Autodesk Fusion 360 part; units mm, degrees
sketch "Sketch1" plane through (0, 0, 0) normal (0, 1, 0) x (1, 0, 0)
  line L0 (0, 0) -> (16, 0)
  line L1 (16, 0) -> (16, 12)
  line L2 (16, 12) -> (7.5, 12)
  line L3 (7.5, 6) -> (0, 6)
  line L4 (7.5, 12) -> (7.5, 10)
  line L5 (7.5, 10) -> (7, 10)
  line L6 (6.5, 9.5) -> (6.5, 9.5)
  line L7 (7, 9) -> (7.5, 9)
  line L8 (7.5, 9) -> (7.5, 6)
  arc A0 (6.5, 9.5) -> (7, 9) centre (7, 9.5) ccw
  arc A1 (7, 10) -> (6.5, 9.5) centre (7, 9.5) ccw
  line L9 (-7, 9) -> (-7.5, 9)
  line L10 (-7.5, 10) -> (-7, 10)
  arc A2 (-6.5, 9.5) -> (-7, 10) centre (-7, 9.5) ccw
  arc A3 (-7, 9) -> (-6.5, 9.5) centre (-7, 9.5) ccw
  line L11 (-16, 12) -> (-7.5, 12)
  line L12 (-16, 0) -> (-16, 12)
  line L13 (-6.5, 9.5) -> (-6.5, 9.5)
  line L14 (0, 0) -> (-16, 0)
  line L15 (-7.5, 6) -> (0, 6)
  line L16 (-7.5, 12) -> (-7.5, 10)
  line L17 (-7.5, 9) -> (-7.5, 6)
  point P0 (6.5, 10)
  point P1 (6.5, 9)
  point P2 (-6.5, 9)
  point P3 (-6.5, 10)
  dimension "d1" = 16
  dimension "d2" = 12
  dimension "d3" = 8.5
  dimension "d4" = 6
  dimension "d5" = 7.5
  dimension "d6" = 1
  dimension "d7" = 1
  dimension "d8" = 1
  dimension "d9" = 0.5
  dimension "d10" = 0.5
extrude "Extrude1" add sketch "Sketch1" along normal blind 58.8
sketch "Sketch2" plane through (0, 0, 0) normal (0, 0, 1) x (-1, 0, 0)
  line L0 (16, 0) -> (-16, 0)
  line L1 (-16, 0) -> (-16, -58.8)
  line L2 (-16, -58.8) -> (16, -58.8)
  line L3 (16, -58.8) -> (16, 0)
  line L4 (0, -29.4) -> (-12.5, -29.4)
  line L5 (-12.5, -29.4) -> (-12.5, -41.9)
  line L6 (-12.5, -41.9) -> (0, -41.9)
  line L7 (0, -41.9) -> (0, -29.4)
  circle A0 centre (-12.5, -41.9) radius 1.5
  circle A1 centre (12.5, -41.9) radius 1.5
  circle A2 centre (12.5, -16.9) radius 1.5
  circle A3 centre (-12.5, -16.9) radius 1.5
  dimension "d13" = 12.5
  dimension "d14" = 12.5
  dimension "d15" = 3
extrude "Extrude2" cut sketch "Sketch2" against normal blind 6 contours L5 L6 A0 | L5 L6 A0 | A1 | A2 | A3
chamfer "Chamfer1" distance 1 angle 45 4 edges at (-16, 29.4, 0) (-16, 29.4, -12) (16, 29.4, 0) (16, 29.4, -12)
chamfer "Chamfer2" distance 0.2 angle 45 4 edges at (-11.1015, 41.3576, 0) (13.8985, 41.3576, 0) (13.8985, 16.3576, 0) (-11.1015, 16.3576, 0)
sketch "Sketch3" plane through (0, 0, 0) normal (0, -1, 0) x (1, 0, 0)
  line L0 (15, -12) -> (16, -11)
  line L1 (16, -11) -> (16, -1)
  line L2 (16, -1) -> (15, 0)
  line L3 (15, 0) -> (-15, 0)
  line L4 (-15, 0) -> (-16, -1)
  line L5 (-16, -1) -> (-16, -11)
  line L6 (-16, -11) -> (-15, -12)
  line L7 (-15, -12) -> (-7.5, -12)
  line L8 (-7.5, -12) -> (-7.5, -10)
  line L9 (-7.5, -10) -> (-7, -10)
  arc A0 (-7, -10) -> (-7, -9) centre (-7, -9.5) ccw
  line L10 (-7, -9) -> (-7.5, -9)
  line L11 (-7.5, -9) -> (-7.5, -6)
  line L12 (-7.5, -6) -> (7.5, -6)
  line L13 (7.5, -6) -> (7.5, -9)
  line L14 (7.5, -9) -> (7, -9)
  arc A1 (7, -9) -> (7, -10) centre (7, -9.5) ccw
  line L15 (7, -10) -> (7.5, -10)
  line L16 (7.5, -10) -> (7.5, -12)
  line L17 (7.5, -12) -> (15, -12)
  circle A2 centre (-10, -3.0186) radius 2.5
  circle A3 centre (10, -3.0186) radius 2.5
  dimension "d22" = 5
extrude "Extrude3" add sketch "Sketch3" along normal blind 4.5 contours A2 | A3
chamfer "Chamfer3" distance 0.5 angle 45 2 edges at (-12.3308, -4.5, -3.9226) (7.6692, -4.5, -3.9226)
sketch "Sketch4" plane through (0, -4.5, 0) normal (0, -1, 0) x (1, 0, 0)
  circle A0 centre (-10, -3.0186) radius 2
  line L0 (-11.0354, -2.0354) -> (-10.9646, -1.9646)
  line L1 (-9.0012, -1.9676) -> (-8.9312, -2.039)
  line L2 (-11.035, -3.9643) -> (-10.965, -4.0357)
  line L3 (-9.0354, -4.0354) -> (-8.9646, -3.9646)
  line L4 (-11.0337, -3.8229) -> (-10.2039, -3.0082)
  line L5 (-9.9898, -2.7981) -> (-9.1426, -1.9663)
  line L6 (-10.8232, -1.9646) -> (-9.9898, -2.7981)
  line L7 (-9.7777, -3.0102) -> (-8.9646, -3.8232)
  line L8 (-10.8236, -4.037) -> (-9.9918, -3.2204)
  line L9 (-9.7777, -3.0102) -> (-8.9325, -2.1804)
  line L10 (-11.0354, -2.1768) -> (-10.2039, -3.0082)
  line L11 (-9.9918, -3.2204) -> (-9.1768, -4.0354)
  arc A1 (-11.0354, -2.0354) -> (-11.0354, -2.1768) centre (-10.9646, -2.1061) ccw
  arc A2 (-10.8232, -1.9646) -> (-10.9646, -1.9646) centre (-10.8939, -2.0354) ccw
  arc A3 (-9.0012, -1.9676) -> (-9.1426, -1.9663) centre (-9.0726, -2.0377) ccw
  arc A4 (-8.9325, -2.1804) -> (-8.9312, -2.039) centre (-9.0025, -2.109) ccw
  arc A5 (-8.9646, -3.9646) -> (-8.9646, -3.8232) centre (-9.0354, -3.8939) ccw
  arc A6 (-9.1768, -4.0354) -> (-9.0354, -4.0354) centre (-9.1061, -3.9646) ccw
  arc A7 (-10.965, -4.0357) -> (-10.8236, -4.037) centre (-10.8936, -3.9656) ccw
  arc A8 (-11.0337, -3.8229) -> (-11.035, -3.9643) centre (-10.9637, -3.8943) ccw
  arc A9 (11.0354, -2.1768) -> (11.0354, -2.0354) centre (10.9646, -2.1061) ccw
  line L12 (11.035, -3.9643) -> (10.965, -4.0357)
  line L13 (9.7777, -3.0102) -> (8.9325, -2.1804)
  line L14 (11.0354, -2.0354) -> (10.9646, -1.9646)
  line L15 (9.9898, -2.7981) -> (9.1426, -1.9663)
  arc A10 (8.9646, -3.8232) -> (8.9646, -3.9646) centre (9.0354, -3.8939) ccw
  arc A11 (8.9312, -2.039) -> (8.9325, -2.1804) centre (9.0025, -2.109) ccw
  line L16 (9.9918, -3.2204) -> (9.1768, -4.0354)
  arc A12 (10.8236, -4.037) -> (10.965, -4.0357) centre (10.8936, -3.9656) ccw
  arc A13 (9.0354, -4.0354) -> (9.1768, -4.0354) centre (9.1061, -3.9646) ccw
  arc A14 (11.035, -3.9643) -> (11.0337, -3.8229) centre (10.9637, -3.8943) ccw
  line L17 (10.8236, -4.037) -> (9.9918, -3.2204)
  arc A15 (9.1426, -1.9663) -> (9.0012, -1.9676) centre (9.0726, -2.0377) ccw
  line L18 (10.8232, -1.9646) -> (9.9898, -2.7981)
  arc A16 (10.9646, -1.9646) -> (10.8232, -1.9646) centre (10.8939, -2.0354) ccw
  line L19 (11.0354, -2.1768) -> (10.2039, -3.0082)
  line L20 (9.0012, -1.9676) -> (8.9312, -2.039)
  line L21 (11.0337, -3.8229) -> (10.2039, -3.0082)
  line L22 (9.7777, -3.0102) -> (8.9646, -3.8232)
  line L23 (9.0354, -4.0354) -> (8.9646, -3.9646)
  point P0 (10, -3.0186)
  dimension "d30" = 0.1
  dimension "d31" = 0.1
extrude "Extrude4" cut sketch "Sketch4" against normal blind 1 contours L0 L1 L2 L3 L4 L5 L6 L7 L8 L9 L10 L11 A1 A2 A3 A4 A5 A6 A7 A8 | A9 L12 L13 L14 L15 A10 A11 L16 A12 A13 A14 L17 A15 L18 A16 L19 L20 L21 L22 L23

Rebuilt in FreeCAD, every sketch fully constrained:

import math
import FreeCAD as App
import Part
import Sketcher
from FreeCAD import Vector
Q = App.Units.Quantity


def edges_at(feature, points):
    """Names of the edges that pass closest to the given points."""
    edges = feature.Shape.Edges
    near = lambda p: min(range(len(edges)), key=lambda i: edges[i].distToShape(Part.Vertex(*p))[0])
    return sorted({f"Edge{near(p) + 1}" for p in points})

doc = App.newDocument("Part")
body = doc.addObject("PartDesign::Body", "Body")

# Sketch on XZ plane
sketch1 = doc.addObject("Sketcher::SketchObject", "Sketch")
body.addObject(sketch1)
sketch1.AttachmentSupport = (doc.XZ_Plane, [""])
sketch1.MapMode = "FlatFace"
sketch1.addGeometry([
    Part.LineSegment(Vector(-16, 0, 0), Vector(16, 0, 0)),  # 0
    Part.LineSegment(Vector(16, 0, 0), Vector(16, -12, 0)),  # 1
    Part.LineSegment(Vector(16, -12, 0), Vector(7.5, -12, 0)),  # 2
    Part.LineSegment(Vector(7.5, -12, 0), Vector(7.5, -10, 0)),  # 3
    Part.LineSegment(Vector(7.5, -10, 0), Vector(7, -10, 0)),  # 4
    Part.ArcOfCircle(Part.Circle(Vector(7, -9.5, 0), Vector(0, 0, 1), 0.5), math.radians(90), math.radians(270)),  # 5
    Part.LineSegment(Vector(7, -9, 0), Vector(7.5, -9, 0)),  # 6
    Part.LineSegment(Vector(7.5, -9, 0), Vector(7.5, -6, 0)),  # 7
    Part.LineSegment(Vector(7.5, -6, 0), Vector(-7.5, -6, 0)),  # 8
    Part.LineSegment(Vector(-7.5, -6, 0), Vector(-7.5, -9, 0)),  # 9
    Part.LineSegment(Vector(-7.5, -9, 0), Vector(-7, -9, 0)),  # 10
    Part.ArcOfCircle(Part.Circle(Vector(-7, -9.5, 0), Vector(0, 0, 1), 0.5), math.radians(-90), math.radians(90)),  # 11
    Part.LineSegment(Vector(-7, -10, 0), Vector(-7.5, -10, 0)),  # 12
    Part.LineSegment(Vector(-7.5, -10, 0), Vector(-7.5, -12, 0)),  # 13
    Part.LineSegment(Vector(-7.5, -12, 0), Vector(-16, -12, 0)),  # 14
    Part.LineSegment(Vector(-16, -12, 0), Vector(-16, 0, 0)),  # 15
], False)
sketch1.addConstraint([
    Sketcher.Constraint("Coincident", 0, 2, 1, 1),
    Sketcher.Constraint("Coincident", 1, 2, 2, 1),
    Sketcher.Constraint("Coincident", 2, 2, 3, 1),
    Sketcher.Constraint("Coincident", 3, 2, 4, 1),
    Sketcher.Constraint("Tangent", 4, 2, 5, 2),
    Sketcher.Constraint("Tangent", 5, 1, 6, 1),
    Sketcher.Constraint("Coincident", 6, 2, 7, 1),
    Sketcher.Constraint("Coincident", 7, 2, 8, 1),
    Sketcher.Constraint("Coincident", 8, 2, 9, 1),
    Sketcher.Constraint("Coincident", 9, 2, 10, 1),
    Sketcher.Constraint("Tangent", 10, 2, 11, 2),
    Sketcher.Constraint("Tangent", 11, 1, 12, 1),
    Sketcher.Constraint("Coincident", 12, 2, 13, 1),
    Sketcher.Constraint("Coincident", 13, 2, 14, 1),
    Sketcher.Constraint("Coincident", 14, 2, 15, 1),
    Sketcher.Constraint("Coincident", 15, 2, 0, 1),
    Sketcher.Constraint("Horizontal", 0),
    Sketcher.Constraint("Vertical", 1),
    Sketcher.Constraint("Horizontal", 2),
    Sketcher.Constraint("Vertical", 3),
    Sketcher.Constraint("Horizontal", 4),
    Sketcher.Constraint("Horizontal", 6),
    Sketcher.Constraint("Vertical", 7),
    Sketcher.Constraint("Horizontal", 8),
    Sketcher.Constraint("Vertical", 9),
    Sketcher.Constraint("Horizontal", 10),
    Sketcher.Constraint("Horizontal", 12),
    Sketcher.Constraint("Vertical", 13),
    Sketcher.Constraint("Horizontal", 14),
    Sketcher.Constraint("Vertical", 15),
    Sketcher.Constraint("Equal", 5, 11),
    Sketcher.Constraint("Symmetric", 0, 2, 15, 2, -1, 1),
    Sketcher.Constraint("Symmetric", 5, 3, 11, 3, -2),
    Sketcher.Constraint("Symmetric", 2, 2, 13, 2, -2),
    Sketcher.Constraint("Vertical", 3, 2, 6, 2),
    Sketcher.Constraint("Vertical", 9, 2, 12, 2),
    Sketcher.Constraint("Radius", 5, Q("0.5 mm")),
    Sketcher.Constraint("DistanceY", 1, 2, 1, 1, Q("12 mm")),
    Sketcher.Constraint("DistanceX", 2, 2, 2, 1, Q("8.5 mm")),
    Sketcher.Constraint("DistanceX", 4, 2, 4, 1, Q("0.5 mm")),
    Sketcher.Constraint("DistanceX", -1, 1, 0, 2, Q("16 mm")),
    Sketcher.Constraint("DistanceY", 7, 2, -1, 1, Q("6 mm")),
    Sketcher.Constraint("DistanceY", 3, 1, 3, 2, Q("2 mm")),
])
pad1 = doc.addObject("PartDesign::Pad", "Pad")
body.addObject(pad1)
pad1.Profile = sketch1
pad1.Length = 58.8
pad1.Reversed = True

# Sketch on XY plane
sketch2 = doc.addObject("Sketcher::SketchObject", "Sketch001")
body.addObject(sketch2)
sketch2.AttachmentSupport = (doc.XY_Plane, [""])
sketch2.MapMode = "FlatFace"
sketch2.addGeometry([
    Part.Circle(Vector(12.5, 41.9, 0), Vector(0, 0, 1), 1.5),
    Part.Circle(Vector(-12.5, 41.9, 0), Vector(0, 0, 1), 1.5),
    Part.Circle(Vector(-12.5, 16.9, 0), Vector(0, 0, 1), 1.5),
    Part.Circle(Vector(12.5, 16.9, 0), Vector(0, 0, 1), 1.5),
], False)
sketch2.addConstraint([
    Sketcher.Constraint("Equal", 0, 1),
    Sketcher.Constraint("Equal", 1, 2),
    Sketcher.Constraint("Equal", 2, 3),
    Sketcher.Constraint("Symmetric", 0, 3, 1, 3, -2),
    Sketcher.Constraint("Symmetric", 2, 3, 3, 3, -2),
    Sketcher.Constraint("Vertical", 1, 3, 2, 3),
    Sketcher.Constraint("Diameter", 0, Q("3 mm")),
    Sketcher.Constraint("DistanceX", -1, 1, 0, 3, Q("12.5 mm")),
    Sketcher.Constraint("DistanceY", 2, 3, 1, 3, Q("25 mm")),
    Sketcher.Constraint("DistanceY", -1, 1, 0, 3, Q("41.9 mm")),
])
pocket1 = doc.addObject("PartDesign::Pocket", "Pocket")
body.addObject(pocket1)
pocket1.Profile = sketch2
pocket1.Length = 6
doc.recompute()

chamfer = doc.addObject("PartDesign::Chamfer", "Chamfer")
body.addObject(chamfer)
chamfer.Base = (pocket1, edges_at(pocket1, [
    (-16, 29.4, 0),
    (-16, 29.4, -12),
    (16, 29.4, 0),
    (16, 29.4, -12),
]))
chamfer.Size = 1
doc.recompute()

chamfer2 = doc.addObject("PartDesign::Chamfer", "Chamfer001")
body.addObject(chamfer2)
chamfer2.Base = (chamfer, edges_at(chamfer, [
    (-11.101, 41.358, 0),
    (13.899, 41.358, 0),
    (13.899, 16.358, 0),
    (-11.101, 16.358, 0),
]))
chamfer2.Size = 0.2

# Sketch on XZ plane
sketch3 = doc.addObject("Sketcher::SketchObject", "Sketch002")
body.addObject(sketch3)
sketch3.AttachmentSupport = (doc.XZ_Plane, [""])
sketch3.MapMode = "FlatFace"
sketch3.addGeometry([
    Part.Circle(Vector(-10, -3, 0), Vector(0, 0, 1), 2.5),
    Part.Circle(Vector(10, -3, 0), Vector(0, 0, 1), 2.5),
], False)
sketch3.addConstraint([
    Sketcher.Constraint("Equal", 0, 1),
    Sketcher.Constraint("Symmetric", 0, 3, 1, 3, -2),
    Sketcher.Constraint("Diameter", 0, Q("5 mm")),
    Sketcher.Constraint("DistanceX", 0, 3, -1, 1, Q("10 mm")),
    Sketcher.Constraint("DistanceY", 0, 3, -1, 1, Q("3.0186 mm")),
])
pad2 = doc.addObject("PartDesign::Pad", "Pad001")
body.addObject(pad2)
pad2.Profile = sketch3
pad2.Length = 4.5
doc.recompute()

chamfer3 = doc.addObject("PartDesign::Chamfer", "Chamfer002")
body.addObject(chamfer3)
chamfer3.Base = (pad2, edges_at(pad2, [(-12.331, -4.5, -3.923), (7.669, -4.5, -3.923)]))
chamfer3.Size = 0.5

# Sketch on XZ plane
sketch4 = doc.addObject("Sketcher::SketchObject", "Sketch003")
body.addObject(sketch4)
sketch4.AttachmentSupport = (doc.XZ_Plane, [""])
sketch4.MapMode = "FlatFace"
sketch4.AttachmentOffset = App.Placement(Vector(0, 0, 4.5), App.Rotation())
sketch4.addGeometry([
    Part.LineSegment(Vector(-10.96, -1.96, 0), Vector(-11.04, -2.04, 0)),  # 0
    Part.ArcOfCircle(Part.Circle(Vector(-10.96, -2.11, 0), Vector(0, 0, 1), 0.1), math.radians(135), math.radians(225)),  # 1
    Part.LineSegment(Vector(-11.04, -2.18, 0), Vector(-10.2, -3.01, 0)),  # 2
    Part.LineSegment(Vector(-10.2, -3.01, 0), Vector(-11.03, -3.82, 0)),  # 3
    Part.ArcOfCircle(Part.Circle(Vector(-10.96, -3.89, 0), Vector(0, 0, 1), 0.1), math.radians(134), math.radians(224)),  # 4
    Part.LineSegment(Vector(-11.04, -3.96, 0), Vector(-10.96, -4.04, 0)),  # 5
    Part.ArcOfCircle(Part.Circle(Vector(-10.89, -3.97, 0), Vector(0, 0, 1), 0.1), math.radians(-136), math.radians(-46)),  # 6
    Part.LineSegment(Vector(-10.82, -4.04, 0), Vector(-9.99, -3.22, 0)),  # 7
    Part.LineSegment(Vector(-9.99, -3.22, 0), Vector(-9.18, -4.04, 0)),  # 8
    Part.ArcOfCircle(Part.Circle(Vector(-9.11, -3.96, 0), Vector(0, 0, 1), 0.1), math.radians(-135), math.radians(-45)),  # 9
    Part.LineSegment(Vector(-9.04, -4.04, 0), Vector(-8.96, -3.96, 0)),  # 10
    Part.ArcOfCircle(Part.Circle(Vector(-9.04, -3.89, 0), Vector(0, 0, 1), 0.1), math.radians(-45), math.radians(45)),  # 11
    Part.LineSegment(Vector(-8.96, -3.82, 0), Vector(-9.78, -3.01, 0)),  # 12
    Part.LineSegment(Vector(-9.78, -3.01, 0), Vector(-8.93, -2.18, 0)),  # 13
    Part.ArcOfCircle(Part.Circle(Vector(-9, -2.11, 0), Vector(0, 0, 1), 0.1), math.radians(-46), math.radians(44)),  # 14
    Part.LineSegment(Vector(-8.93, -2.04, 0), Vector(-9, -1.97, 0)),  # 15
    Part.ArcOfCircle(Part.Circle(Vector(-9.07, -2.04, 0), Vector(0, 0, 1), 0.1), math.radians(44), math.radians(134)),  # 16
    Part.LineSegment(Vector(-9.14, -1.97, 0), Vector(-9.99, -2.8, 0)),  # 17
    Part.LineSegment(Vector(-9.99, -2.8, 0), Vector(-10.82, -1.96, 0)),  # 18
    Part.ArcOfCircle(Part.Circle(Vector(-10.89, -2.04, 0), Vector(0, 0, 1), 0.1), math.radians(45), math.radians(135)),  # 19
    Part.LineSegment(Vector(10.2, -3.01, 0), Vector(11.04, -2.18, 0)),  # 20
    Part.ArcOfCircle(Part.Circle(Vector(10.96, -2.11, 0), Vector(0, 0, 1), 0.1), math.radians(-45), math.radians(45)),  # 21
    Part.LineSegment(Vector(11.04, -2.04, 0), Vector(10.96, -1.96, 0)),  # 22
    Part.ArcOfCircle(Part.Circle(Vector(10.89, -2.04, 0), Vector(0, 0, 1), 0.1), math.radians(45), math.radians(135)),  # 23
    Part.LineSegment(Vector(10.82, -1.96, 0), Vector(9.99, -2.8, 0)),  # 24
    Part.LineSegment(Vector(9.99, -2.8, 0), Vector(9.14, -1.97, 0)),  # 25
    Part.ArcOfCircle(Part.Circle(Vector(9.07, -2.04, 0), Vector(0, 0, 1), 0.1), math.radians(46), math.radians(136)),  # 26
    Part.LineSegment(Vector(9, -1.97, 0), Vector(8.93, -2.04, 0)),  # 27
    Part.ArcOfCircle(Part.Circle(Vector(9, -2.11, 0), Vector(0, 0, 1), 0.1), math.radians(136), math.radians(226)),  # 28
    Part.LineSegment(Vector(8.93, -2.18, 0), Vector(9.78, -3.01, 0)),  # 29
    Part.LineSegment(Vector(9.78, -3.01, 0), Vector(8.96, -3.82, 0)),  # 30
    Part.ArcOfCircle(Part.Circle(Vector(9.04, -3.89, 0), Vector(0, 0, 1), 0.1), math.radians(135), math.radians(225)),  # 31
    Part.LineSegment(Vector(8.96, -3.96, 0), Vector(9.04, -4.04, 0)),  # 32
    Part.ArcOfCircle(Part.Circle(Vector(9.11, -3.96, 0), Vector(0, 0, 1), 0.1), math.radians(-135), math.radians(-45)),  # 33
    Part.LineSegment(Vector(9.18, -4.04, 0), Vector(9.99, -3.22, 0)),  # 34
    Part.LineSegment(Vector(9.99, -3.22, 0), Vector(10.82, -4.04, 0)),  # 35
    Part.ArcOfCircle(Part.Circle(Vector(10.89, -3.97, 0), Vector(0, 0, 1), 0.1), math.radians(-134), math.radians(-44)),  # 36
    Part.LineSegment(Vector(10.96, -4.04, 0), Vector(11.04, -3.96, 0)),  # 37
    Part.ArcOfCircle(Part.Circle(Vector(10.96, -3.89, 0), Vector(0, 0, 1), 0.1), math.radians(-44), math.radians(46)),  # 38
    Part.LineSegment(Vector(11.03, -3.82, 0), Vector(10.2, -3.01, 0)),  # 39
], False)
sketch4.addConstraint([
    Sketcher.Constraint("Coincident", 0, 2, 1, 1),
    Sketcher.Constraint("Coincident", 1, 2, 2, 1),
    Sketcher.Constraint("Coincident", 2, 2, 3, 1),
    Sketcher.Constraint("Coincident", 3, 2, 4, 1),
    Sketcher.Constraint("Coincident", 4, 2, 5, 1),
    Sketcher.Constraint("Coincident", 5, 2, 6, 1),
    Sketcher.Constraint("Coincident", 6, 2, 7, 1),
    Sketcher.Constraint("Coincident", 7, 2, 8, 1),
    Sketcher.Constraint("Coincident", 8, 2, 9, 1),
    Sketcher.Constraint("Coincident", 9, 2, 10, 1),
    Sketcher.Constraint("Coincident", 10, 2, 11, 1),
    Sketcher.Constraint("Coincident", 11, 2, 12, 1),
    Sketcher.Constraint("Coincident", 12, 2, 13, 1),
    Sketcher.Constraint("Coincident", 13, 2, 14, 1),
    Sketcher.Constraint("Coincident", 14, 2, 15, 1),
    Sketcher.Constraint("Coincident", 15, 2, 16, 1),
    Sketcher.Constraint("Coincident", 16, 2, 17, 1),
    Sketcher.Constraint("Coincident", 17, 2, 18, 1),
    Sketcher.Constraint("Coincident", 18, 2, 19, 1),
    Sketcher.Constraint("Coincident", 19, 2, 0, 1),
    Sketcher.Constraint("Coincident", 20, 2, 21, 1),
    Sketcher.Constraint("Coincident", 21, 2, 22, 1),
    Sketcher.Constraint("Coincident", 22, 2, 23, 1),
    Sketcher.Constraint("Coincident", 23, 2, 24, 1),
    Sketcher.Constraint("Coincident", 24, 2, 25, 1),
    Sketcher.Constraint("Coincident", 25, 2, 26, 1),
    Sketcher.Constraint("Coincident", 26, 2, 27, 1),
    Sketcher.Constraint("Coincident", 27, 2, 28, 1),
    Sketcher.Constraint("Coincident", 28, 2, 29, 1),
    Sketcher.Constraint("Coincident", 29, 2, 30, 1),
    Sketcher.Constraint("Coincident", 30, 2, 31, 1),
    Sketcher.Constraint("Coincident", 31, 2, 32, 1),
    Sketcher.Constraint("Coincident", 32, 2, 33, 1),
    Sketcher.Constraint("Coincident", 33, 2, 34, 1),
    Sketcher.Constraint("Coincident", 34, 2, 35, 1),
    Sketcher.Constraint("Coincident", 35, 2, 36, 1),
    Sketcher.Constraint("Coincident", 36, 2, 37, 1),
    Sketcher.Constraint("Coincident", 37, 2, 38, 1),
    Sketcher.Constraint("Coincident", 38, 2, 39, 1),
    Sketcher.Constraint("Coincident", 39, 2, 20, 1),
    Sketcher.Constraint("Equal", 1, 4),
    Sketcher.Constraint("Equal", 4, 6),
    Sketcher.Constraint("Equal", 6, 9),
    Sketcher.Constraint("Equal", 9, 11),
    Sketcher.Constraint("Equal", 11, 14),
    Sketcher.Constraint("Equal", 14, 16),
    Sketcher.Constraint("Equal", 16, 19),
    Sketcher.Constraint("Equal", 19, 21),
    Sketcher.Constraint("Equal", 21, 23),
    Sketcher.Constraint("Equal", 23, 26),
    Sketcher.Constraint("Equal", 26, 28),
    Sketcher.Constraint("Equal", 28, 31),
    Sketcher.Constraint("Equal", 31, 33),
    Sketcher.Constraint("Equal", 33, 36),
    Sketcher.Constraint("Equal", 36, 38),
    Sketcher.Constraint("Symmetric", 1, 3, 21, 3, -2),
    Sketcher.Constraint("Symmetric", 19, 3, 23, 3, -2),
    Sketcher.Constraint("Symmetric", 16, 3, 26, 3, -2),
    Sketcher.Constraint("Symmetric", 14, 3, 28, 3, -2),
    Sketcher.Constraint("Symmetric", 11, 3, 31, 3, -2),
    Sketcher.Constraint("Symmetric", 9, 3, 33, 3, -2),
    Sketcher.Constraint("Symmetric", 6, 3, 36, 3, -2),
    Sketcher.Constraint("Symmetric", 4, 3, 38, 3, -2),
    Sketcher.Constraint("Symmetric", 17, 2, 24, 2, -2),
    Sketcher.Constraint("Symmetric", 12, 2, 29, 2, -2),
    Sketcher.Constraint("Symmetric", 7, 2, 34, 2, -2),
    Sketcher.Constraint("Symmetric", 2, 2, 39, 2, -2),
    Sketcher.Constraint("Perpendicular", 0, 2),
    Sketcher.Constraint("Parallel", 3, 7),
    Sketcher.Constraint("Parallel", 2, 8),
    Sketcher.Constraint("Perpendicular", 8, 10),
    Sketcher.Constraint("Perpendicular", 10, 12),
    Sketcher.Constraint("Parallel", 7, 13),
    Sketcher.Constraint("Parallel", 5, 15),
    Sketcher.Constraint("Parallel", 13, 17),
    Sketcher.Constraint("Parallel", 12, 18),
    Sketcher.Constraint("Perpendicular", 18, 20),
    Sketcher.Constraint("Horizontal", 23, 3, 0, 2),
    Sketcher.Constraint("Horizontal", 8, 2, 9, 2),
    Sketcher.Constraint("Horizontal", 33, 3, 10, 2),
    Sketcher.Constraint("Horizontal", 18, 2, 19, 2),
    Sketcher.Constraint("Horizontal", 1, 2, 20, 2),
    Sketcher.Constraint("Horizontal", 0, 2, 21, 2),
    Sketcher.Constraint("Horizontal", 19, 2, 22, 2),
    Sketcher.Constraint("Horizontal", 22, 2, 23, 2),
    Sketcher.Constraint("Horizontal", 16, 2, 25, 2),
    Sketcher.Constraint("Horizontal", 15, 2, 26, 2),
    Sketcher.Constraint("Horizontal", 14, 2, 27, 2),
    Sketcher.Constraint("Horizontal", 13, 2, 28, 2),
    Sketcher.Constraint("Horizontal", 11, 2, 30, 2),
    Sketcher.Constraint("Horizontal", 10, 2, 31, 2),
    Sketcher.Constraint("Horizontal", 9, 2, 32, 2),
    Sketcher.Constraint("Horizontal", 32, 2, 33, 2),
    Sketcher.Constraint("Horizontal", 6, 2, 35, 2),
    Sketcher.Constraint("Horizontal", 5, 2, 36, 2),
    Sketcher.Constraint("Horizontal", 4, 2, 37, 2),
    Sketcher.Constraint("Horizontal", 3, 2, 38, 2),
    Sketcher.Constraint("Vertical", 0, 2, 1, 2),
    Sketcher.Constraint("Vertical", 11, 3, 9, 2),
    Sketcher.Constraint("Vertical", 10, 2, 11, 2),
    Sketcher.Constraint("Vertical", 1, 3, 19, 2),
    Sketcher.Constraint("Equal", 0, 5),
    Sketcher.Constraint("Equal", 5, 10),
    Sketcher.Constraint("Equal", 10, 15),
    Sketcher.Constraint("Radius", 1, Q("0.1 mm")),
    Sketcher.Constraint("Distance", 5, Q("0.1 mm")),
    Sketcher.Constraint("DistanceX", 11, 3, 21, 3, Q("20 mm")),
    Sketcher.Constraint("DistanceX", 4, 3, 6, 3, Q("0.07 mm")),
    Sketcher.Constraint("DistanceX", 16, 3, 14, 3, Q("0.07 mm")),
    Sketcher.Constraint("DistanceX", 19, 3, 2, 2, Q("0.69 mm")),
    Sketcher.Constraint("DistanceX", 3, 2, 4, 3, Q("0.07 mm")),
    Sketcher.Constraint("DistanceY", 4, 2, 4, 3, Q("0.07 mm")),
    Sketcher.Constraint("DistanceX", 4, 2, 5, 2, Q("0.07 mm")),
    Sketcher.Constraint("DistanceX", 6, 3, 6, 2, Q("0.07 mm")),
    Sketcher.Constraint("DistanceX", 14, 3, 13, 2, Q("0.07 mm")),
    Sketcher.Constraint("DistanceY", 7, 2, 13, 2, Q("1.04 mm")),
    Sketcher.Constraint("DistanceY", 14, 3, 14, 2, Q("0.07 mm")),
    Sketcher.Constraint("DistanceX", 16, 2, 16, 3, Q("0.07 mm")),
    Sketcher.Constraint("DistanceY", 2, 2, 17, 2, Q("0.21 mm")),
    Sketcher.Constraint("Distance", 3, Q("1.163 mm")),
    Sketcher.Constraint("DistanceY", 1, 3, -1, 1, Q("2.106 mm")),
    Sketcher.Constraint("DistanceX", 9, 3, -1, 1, Q("9.106 mm")),
    Sketcher.Constraint("DistanceY", 11, 3, -1, 1, Q("3.894 mm")),
    Sketcher.Constraint("DistanceY", 3, 2, -1, 1, Q("3.823 mm")),
])
pocket2 = doc.addObject("PartDesign::Pocket", "Pocket001")
body.addObject(pocket2)
pocket2.Profile = sketch4
pocket2.Length = 1

doc.recompute()
